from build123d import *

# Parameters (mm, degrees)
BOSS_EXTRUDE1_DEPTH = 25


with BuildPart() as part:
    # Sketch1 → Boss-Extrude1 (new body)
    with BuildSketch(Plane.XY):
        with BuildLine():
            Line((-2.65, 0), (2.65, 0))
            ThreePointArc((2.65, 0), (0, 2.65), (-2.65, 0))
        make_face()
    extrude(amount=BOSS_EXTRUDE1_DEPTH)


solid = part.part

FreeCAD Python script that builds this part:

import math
import FreeCAD as App
import Part
import Sketcher

doc = App.newDocument("Part")
body = doc.addObject("PartDesign::Body", "Body")

# Sketch on XY plane
sketch1 = doc.addObject("Sketcher::SketchObject", "Sketch")
body.addObject(sketch1)
sketch1.AttachmentSupport = (doc.XY_Plane, [""])
sketch1.MapMode = "FlatFace"
sketch1.addGeometry(Part.LineSegment(App.Vector(-2.6, 0, 0), App.Vector(2.6, 0, 0)), False)
sketch1.addGeometry(Part.ArcOfCircle(Part.Circle(App.Vector(0, 0, 0), App.Vector(0, 0, 1), 2.6), math.radians(0), math.radians(180)), False)
sketch1.addConstraint(Sketcher.Constraint("Coincident", 0, 1, 1, 2))
sketch1.addConstraint(Sketcher.Constraint("Coincident", 1, 1, 0, 2))
sketch1.addConstraint(Sketcher.Constraint("Horizontal", 0))
sketch1.addConstraint(Sketcher.Constraint("Coincident", 1, 3, -1, 1))
sketch1.addConstraint(Sketcher.Constraint("PointOnObject", 0, 1, -1))
sketch1.addConstraint(Sketcher.Constraint("Radius", 1, 2.65))
pad1 = doc.addObject("PartDesign::Pad", "Pad")
body.addObject(pad1)
pad1.Profile = sketch1
pad1.Length = 25

doc.recompute()
